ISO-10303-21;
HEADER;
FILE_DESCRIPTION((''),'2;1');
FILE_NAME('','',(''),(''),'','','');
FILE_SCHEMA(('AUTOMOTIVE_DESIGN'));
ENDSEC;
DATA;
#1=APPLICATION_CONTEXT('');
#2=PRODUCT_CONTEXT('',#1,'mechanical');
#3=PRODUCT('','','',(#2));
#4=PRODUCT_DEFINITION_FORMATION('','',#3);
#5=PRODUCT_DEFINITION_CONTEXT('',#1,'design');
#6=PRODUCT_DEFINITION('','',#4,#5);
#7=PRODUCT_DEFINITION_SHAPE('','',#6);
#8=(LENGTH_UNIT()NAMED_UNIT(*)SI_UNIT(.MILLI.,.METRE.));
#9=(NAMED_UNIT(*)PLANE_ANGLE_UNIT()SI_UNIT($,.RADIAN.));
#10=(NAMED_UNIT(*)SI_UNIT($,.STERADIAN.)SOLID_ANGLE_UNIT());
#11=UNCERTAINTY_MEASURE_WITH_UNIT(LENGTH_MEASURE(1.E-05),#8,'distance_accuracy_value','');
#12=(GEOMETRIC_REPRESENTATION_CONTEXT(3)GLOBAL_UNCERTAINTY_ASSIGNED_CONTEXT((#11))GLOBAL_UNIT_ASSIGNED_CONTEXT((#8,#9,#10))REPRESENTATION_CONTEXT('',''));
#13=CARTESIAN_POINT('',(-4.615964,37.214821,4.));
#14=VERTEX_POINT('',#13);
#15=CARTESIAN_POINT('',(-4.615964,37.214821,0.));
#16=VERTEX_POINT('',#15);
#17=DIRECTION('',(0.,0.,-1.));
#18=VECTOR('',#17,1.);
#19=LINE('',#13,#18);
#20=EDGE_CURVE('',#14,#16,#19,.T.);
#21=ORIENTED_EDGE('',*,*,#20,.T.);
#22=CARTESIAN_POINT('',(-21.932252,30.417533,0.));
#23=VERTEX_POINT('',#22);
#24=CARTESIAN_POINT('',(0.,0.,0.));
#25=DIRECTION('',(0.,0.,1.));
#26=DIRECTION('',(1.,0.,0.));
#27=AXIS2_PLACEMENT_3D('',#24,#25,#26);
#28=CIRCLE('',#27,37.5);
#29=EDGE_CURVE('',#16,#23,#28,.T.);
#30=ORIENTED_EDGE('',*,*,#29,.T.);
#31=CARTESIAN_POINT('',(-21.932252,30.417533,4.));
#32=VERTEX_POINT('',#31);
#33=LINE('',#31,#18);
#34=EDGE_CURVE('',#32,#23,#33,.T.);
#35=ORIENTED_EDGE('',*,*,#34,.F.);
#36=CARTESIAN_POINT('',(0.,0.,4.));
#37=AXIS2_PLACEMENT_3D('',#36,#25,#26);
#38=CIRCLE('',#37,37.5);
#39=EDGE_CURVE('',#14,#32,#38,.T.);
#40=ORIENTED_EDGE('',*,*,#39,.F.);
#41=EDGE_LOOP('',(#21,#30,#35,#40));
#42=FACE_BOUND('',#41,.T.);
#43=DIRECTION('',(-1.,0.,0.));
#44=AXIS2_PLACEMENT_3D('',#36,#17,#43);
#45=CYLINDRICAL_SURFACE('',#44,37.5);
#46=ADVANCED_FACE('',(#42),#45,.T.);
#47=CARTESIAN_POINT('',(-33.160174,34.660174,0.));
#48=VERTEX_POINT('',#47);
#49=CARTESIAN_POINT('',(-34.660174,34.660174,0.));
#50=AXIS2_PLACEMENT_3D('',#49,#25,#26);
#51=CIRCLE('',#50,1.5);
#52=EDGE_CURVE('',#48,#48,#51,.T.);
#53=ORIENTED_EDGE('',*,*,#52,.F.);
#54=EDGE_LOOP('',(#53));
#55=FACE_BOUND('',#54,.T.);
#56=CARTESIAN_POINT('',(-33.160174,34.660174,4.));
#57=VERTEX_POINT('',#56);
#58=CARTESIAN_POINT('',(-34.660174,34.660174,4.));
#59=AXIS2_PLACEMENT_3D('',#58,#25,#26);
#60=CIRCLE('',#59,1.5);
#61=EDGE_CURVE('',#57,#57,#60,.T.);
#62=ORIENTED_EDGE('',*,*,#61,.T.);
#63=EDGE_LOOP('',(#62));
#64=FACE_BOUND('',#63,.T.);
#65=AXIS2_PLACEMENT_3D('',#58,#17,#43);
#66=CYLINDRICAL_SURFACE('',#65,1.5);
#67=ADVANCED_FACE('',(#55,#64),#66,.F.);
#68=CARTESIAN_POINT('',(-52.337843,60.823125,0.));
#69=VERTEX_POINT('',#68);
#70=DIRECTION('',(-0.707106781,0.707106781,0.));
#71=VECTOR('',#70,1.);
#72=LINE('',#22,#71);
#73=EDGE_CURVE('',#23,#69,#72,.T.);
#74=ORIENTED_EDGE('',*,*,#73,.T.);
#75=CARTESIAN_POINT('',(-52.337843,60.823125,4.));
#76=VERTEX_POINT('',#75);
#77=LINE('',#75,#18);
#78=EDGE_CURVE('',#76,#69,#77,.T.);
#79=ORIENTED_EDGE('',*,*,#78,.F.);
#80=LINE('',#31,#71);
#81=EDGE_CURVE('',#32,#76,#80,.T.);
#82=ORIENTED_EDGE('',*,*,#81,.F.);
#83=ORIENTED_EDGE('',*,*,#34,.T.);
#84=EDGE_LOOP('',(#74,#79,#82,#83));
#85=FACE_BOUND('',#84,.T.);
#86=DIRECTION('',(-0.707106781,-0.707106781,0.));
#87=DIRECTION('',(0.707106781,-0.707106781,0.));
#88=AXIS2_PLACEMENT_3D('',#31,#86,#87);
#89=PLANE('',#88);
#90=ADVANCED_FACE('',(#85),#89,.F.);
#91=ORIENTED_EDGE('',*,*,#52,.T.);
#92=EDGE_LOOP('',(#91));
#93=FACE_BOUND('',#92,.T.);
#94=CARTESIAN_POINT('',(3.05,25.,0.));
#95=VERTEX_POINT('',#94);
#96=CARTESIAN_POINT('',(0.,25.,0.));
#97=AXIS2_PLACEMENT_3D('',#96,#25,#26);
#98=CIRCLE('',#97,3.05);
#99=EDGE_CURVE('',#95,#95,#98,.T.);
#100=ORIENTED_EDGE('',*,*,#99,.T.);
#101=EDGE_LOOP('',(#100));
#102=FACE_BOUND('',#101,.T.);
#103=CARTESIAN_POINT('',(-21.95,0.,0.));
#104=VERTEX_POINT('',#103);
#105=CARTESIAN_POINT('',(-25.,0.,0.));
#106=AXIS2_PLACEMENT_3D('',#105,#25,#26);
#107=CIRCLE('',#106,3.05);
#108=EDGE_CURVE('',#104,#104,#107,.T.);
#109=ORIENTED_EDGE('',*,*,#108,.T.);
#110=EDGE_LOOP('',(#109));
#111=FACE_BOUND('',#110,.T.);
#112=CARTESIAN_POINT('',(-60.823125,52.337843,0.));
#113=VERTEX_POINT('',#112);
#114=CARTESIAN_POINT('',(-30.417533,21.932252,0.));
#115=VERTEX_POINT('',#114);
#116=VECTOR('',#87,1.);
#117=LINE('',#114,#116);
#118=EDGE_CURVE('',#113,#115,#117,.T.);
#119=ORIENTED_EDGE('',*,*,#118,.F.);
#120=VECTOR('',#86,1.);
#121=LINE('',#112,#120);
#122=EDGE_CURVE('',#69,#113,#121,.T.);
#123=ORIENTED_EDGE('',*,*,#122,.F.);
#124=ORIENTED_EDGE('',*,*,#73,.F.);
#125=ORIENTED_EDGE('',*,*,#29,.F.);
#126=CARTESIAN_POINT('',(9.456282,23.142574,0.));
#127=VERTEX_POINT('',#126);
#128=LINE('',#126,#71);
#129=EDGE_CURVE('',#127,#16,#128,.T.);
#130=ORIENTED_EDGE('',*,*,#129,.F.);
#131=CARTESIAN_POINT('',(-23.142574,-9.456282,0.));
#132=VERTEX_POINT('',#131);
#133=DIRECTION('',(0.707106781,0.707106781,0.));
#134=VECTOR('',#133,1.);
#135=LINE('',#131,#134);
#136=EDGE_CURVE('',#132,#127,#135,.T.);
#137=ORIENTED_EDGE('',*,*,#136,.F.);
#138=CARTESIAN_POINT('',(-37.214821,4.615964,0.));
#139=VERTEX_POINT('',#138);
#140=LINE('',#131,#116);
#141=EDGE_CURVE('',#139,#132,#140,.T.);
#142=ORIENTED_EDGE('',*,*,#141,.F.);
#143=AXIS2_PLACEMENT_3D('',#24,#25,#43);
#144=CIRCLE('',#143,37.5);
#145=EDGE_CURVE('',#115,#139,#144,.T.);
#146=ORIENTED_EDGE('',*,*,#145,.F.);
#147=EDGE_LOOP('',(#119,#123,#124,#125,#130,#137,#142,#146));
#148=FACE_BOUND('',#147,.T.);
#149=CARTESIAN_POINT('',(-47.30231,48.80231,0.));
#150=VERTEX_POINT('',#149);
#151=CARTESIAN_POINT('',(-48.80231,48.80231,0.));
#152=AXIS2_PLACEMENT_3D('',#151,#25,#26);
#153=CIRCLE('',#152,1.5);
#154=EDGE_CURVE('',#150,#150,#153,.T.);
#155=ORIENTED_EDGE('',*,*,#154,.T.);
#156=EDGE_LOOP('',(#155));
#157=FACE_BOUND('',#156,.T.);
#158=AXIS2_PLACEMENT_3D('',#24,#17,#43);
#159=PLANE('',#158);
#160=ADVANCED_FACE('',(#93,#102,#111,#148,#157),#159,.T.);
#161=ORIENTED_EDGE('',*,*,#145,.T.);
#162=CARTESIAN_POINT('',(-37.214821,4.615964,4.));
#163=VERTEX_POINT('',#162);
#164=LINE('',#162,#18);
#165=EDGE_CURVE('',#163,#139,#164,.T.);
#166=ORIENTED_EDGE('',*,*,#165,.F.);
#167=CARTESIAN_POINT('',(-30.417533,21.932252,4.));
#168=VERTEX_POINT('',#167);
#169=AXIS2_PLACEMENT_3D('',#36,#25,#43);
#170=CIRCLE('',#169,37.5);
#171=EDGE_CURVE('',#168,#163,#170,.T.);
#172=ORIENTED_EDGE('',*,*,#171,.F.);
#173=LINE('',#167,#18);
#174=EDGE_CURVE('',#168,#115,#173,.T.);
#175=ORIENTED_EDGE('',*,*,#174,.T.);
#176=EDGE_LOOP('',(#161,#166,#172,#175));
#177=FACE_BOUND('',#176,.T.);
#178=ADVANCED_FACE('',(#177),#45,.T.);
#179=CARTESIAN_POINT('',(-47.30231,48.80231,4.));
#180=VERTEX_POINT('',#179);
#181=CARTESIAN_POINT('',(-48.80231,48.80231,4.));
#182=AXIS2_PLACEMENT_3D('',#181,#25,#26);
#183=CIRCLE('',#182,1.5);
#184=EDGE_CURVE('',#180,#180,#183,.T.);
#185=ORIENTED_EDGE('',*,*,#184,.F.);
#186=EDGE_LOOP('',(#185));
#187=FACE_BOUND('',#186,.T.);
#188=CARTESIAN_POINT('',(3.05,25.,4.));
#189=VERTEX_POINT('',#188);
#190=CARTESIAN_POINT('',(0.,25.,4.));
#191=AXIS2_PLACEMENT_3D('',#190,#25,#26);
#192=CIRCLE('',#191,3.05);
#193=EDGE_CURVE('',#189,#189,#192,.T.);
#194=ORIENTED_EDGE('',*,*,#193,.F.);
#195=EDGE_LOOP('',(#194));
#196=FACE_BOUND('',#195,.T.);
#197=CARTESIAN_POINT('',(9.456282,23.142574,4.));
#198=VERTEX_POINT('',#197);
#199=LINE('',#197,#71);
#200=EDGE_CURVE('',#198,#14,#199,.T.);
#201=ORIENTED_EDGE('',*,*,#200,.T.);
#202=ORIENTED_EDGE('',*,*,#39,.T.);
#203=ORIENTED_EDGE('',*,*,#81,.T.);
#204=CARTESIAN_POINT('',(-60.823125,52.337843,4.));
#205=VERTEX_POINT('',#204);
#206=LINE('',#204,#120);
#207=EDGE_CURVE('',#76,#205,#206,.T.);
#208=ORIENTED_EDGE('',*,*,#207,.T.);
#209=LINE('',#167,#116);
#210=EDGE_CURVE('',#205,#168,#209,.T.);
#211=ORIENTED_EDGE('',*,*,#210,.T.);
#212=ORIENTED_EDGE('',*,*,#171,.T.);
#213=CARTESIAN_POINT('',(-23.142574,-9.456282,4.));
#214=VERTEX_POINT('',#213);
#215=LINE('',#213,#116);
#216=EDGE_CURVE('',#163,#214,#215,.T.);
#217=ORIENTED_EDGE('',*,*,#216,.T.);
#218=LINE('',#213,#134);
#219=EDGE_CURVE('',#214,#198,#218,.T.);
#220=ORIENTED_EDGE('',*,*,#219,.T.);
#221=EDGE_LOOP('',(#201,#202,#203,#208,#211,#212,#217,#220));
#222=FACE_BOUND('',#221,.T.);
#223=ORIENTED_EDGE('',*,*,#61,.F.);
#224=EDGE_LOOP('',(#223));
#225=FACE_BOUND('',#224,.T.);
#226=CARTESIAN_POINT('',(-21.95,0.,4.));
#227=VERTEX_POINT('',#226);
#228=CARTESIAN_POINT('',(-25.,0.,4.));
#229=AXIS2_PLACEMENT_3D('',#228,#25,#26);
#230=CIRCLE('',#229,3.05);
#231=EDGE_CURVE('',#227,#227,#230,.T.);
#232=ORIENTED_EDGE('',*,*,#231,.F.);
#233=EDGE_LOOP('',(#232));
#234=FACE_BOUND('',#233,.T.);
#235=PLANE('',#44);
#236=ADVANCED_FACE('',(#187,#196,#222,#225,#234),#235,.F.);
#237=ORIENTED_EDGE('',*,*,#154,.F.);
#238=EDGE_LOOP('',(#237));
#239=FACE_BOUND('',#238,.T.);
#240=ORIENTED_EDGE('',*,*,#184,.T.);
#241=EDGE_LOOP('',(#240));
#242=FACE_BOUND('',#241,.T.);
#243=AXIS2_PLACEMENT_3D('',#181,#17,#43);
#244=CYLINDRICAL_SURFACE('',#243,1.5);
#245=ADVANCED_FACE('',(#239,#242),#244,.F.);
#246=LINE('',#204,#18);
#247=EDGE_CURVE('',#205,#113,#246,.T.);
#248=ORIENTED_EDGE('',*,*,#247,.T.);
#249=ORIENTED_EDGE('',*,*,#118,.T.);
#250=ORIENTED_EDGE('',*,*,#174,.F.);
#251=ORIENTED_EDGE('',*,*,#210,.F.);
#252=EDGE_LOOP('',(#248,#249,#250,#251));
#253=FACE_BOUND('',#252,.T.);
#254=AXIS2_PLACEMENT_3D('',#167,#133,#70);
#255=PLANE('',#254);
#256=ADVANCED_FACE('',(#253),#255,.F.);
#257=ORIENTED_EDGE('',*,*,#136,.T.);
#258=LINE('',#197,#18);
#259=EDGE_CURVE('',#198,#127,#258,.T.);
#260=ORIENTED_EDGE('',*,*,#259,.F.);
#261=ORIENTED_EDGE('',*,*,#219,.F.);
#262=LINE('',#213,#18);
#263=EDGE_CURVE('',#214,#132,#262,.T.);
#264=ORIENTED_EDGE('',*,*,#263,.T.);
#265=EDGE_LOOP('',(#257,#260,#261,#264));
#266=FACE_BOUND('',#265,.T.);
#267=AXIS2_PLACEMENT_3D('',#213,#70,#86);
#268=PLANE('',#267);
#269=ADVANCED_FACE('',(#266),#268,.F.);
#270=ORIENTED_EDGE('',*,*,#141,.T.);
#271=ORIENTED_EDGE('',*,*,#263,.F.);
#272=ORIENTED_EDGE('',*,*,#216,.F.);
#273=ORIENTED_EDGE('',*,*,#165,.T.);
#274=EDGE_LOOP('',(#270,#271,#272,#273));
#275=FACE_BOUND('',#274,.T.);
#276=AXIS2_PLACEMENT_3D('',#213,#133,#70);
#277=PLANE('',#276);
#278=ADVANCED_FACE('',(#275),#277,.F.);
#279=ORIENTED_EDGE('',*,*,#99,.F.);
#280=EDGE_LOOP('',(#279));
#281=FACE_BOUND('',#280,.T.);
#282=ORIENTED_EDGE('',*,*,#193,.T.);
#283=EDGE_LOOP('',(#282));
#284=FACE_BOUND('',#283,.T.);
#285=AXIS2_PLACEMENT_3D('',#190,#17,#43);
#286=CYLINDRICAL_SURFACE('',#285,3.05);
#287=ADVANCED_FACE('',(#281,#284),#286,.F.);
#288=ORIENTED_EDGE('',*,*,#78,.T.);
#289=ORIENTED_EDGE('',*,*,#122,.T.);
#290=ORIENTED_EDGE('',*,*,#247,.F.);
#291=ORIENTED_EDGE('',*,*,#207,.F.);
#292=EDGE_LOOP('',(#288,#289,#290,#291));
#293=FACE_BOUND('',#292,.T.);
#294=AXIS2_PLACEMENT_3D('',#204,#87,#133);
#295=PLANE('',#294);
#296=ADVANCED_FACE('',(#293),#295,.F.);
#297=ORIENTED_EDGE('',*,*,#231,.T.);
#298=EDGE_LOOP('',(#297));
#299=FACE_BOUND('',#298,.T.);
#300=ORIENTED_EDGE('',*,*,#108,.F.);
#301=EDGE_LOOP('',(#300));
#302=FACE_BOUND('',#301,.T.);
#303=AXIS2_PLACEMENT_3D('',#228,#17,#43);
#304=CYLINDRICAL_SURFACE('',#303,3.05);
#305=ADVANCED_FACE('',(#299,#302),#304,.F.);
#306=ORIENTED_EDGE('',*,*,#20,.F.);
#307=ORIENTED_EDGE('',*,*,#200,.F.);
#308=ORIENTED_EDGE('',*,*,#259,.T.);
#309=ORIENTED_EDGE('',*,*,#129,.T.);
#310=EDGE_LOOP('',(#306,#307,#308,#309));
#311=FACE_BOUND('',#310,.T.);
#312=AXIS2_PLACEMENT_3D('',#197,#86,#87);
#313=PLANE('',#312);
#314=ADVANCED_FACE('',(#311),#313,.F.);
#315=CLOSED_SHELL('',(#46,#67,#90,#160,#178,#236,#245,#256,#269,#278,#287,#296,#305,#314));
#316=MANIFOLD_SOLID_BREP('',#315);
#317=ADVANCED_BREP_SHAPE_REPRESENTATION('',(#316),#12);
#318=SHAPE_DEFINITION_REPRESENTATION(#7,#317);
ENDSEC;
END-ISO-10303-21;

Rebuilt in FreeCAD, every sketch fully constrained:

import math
import FreeCAD as App
import Part
import Sketcher

V = App.Vector
Q = App.Units.Quantity

doc = App.newDocument("Part")
body = doc.addObject("PartDesign::Body", "Body")

sketch1 = body.newObject("Sketcher::SketchObject", "Sketch")
sketch1.AttachmentSupport = (doc.getObject("XY_Plane"), [""])
sketch1.MapMode = "FlatFace"
sketch1.addGeometry([
    Part.LineSegment(V(-23.142574, -9.456282, 0), V(9.456282, 23.142574, 0)),
    Part.LineSegment(V(9.456282, 23.142574, 0), V(-4.615964, 37.214821, 0)),
    Part.ArcOfCircle(Part.Circle(V(0, 0, 0), V(0, 0, 1), 37.5), math.radians(97.070607), math.radians(125.793104)),
    Part.LineSegment(V(-21.932252, 30.417533, 0), V(-52.337843, 60.823125, 0)),
    Part.LineSegment(V(-52.337843, 60.823125, 0), V(-60.823125, 52.337843, 0)),
    Part.LineSegment(V(-60.823125, 52.337843, 0), V(-30.417533, 21.932252, 0)),
    Part.ArcOfCircle(Part.Circle(V(0, 0, 0), V(0, 0, 1), 37.5), math.radians(144.206896), math.radians(172.929393)),
    Part.LineSegment(V(-37.214821, 4.615964, 0), V(-23.142574, -9.456282, 0)),
    Part.Circle(V(-25, 0, 0), V(0, 0, 1), 3.05),
    Part.Circle(V(-34.660174, 34.660174, 0), V(0, 0, 1), 1.5),
    Part.Circle(V(-48.80231, 48.80231, 0), V(0, 0, 1), 1.5),
    Part.Circle(V(0, 25, 0), V(0, 0, 1), 3.05),
], False)
sketch1.addConstraint([
    Sketcher.Constraint("Coincident", 0, 2, 1, 1),
    Sketcher.Constraint("Coincident", 1, 2, 2, 1),
    Sketcher.Constraint("Coincident", 2, 2, 3, 1),
    Sketcher.Constraint("Coincident", 3, 2, 4, 1),
    Sketcher.Constraint("Coincident", 4, 2, 5, 1),
    Sketcher.Constraint("Coincident", 5, 2, 6, 1),
    Sketcher.Constraint("Coincident", 6, 2, 7, 1),
    Sketcher.Constraint("Coincident", 7, 2, 0, 1),
    Sketcher.Constraint("Coincident", 2, 3, -1, 1),
    Sketcher.Constraint("Coincident", 6, 3, -1, 1),
    Sketcher.Constraint("Equal", 2, 6),
    Sketcher.Constraint("Equal", 9, 10),
    Sketcher.Constraint("Equal", 8, 11),
    Sketcher.Constraint("PointOnObject", 8, 3, -1),
    Sketcher.Constraint("PointOnObject", 11, 3, -2),
    Sketcher.Constraint("Perpendicular", 0, 1),
    Sketcher.Constraint("Parallel", 1, 3),
    Sketcher.Constraint("Perpendicular", 3, 4),
    Sketcher.Constraint("Perpendicular", 4, 5),
    Sketcher.Constraint("Parallel", 5, 7),
    Sketcher.Constraint("Equal", 3, 5),
    Sketcher.Constraint("Equal", 1, 7),
    Sketcher.Constraint("Diameter", 9, 3.0),
    Sketcher.Constraint("Diameter", 8, 6.1),
    Sketcher.Constraint("Radius", 2, 37.5),
    Sketcher.Constraint("Angle", 0, Q("45 deg")),
    Sketcher.Constraint("Distance", 3, 43.0),
    Sketcher.Constraint("Distance", 4, 12.0),
    Sketcher.Constraint("DistanceX", 8, 3, -1, 1, 25.0),
    Sketcher.Constraint("DistanceY", -1, 1, 11, 3, 25.0),
    Sketcher.Constraint("DistanceY", 0, 2, 9, 3, 11.5176),
    Sketcher.Constraint("DistanceX", 10, 3, -1, 1, 48.80231),
    Sketcher.Constraint("DistanceY", -1, 1, 10, 3, 48.80231),
    Sketcher.Constraint("DistanceY", -1, 1, 1, 2, 37.214821),
    Sketcher.Constraint("DistanceX", 9, 3, 1, 2, 30.04421),
    Sketcher.Constraint("DistanceY", 2, 2, 9, 3, 4.242641),
])
pad1 = body.newObject("PartDesign::Pad", "Pad")
pad1.Profile = sketch1
pad1.Length = 4

doc.recompute()
